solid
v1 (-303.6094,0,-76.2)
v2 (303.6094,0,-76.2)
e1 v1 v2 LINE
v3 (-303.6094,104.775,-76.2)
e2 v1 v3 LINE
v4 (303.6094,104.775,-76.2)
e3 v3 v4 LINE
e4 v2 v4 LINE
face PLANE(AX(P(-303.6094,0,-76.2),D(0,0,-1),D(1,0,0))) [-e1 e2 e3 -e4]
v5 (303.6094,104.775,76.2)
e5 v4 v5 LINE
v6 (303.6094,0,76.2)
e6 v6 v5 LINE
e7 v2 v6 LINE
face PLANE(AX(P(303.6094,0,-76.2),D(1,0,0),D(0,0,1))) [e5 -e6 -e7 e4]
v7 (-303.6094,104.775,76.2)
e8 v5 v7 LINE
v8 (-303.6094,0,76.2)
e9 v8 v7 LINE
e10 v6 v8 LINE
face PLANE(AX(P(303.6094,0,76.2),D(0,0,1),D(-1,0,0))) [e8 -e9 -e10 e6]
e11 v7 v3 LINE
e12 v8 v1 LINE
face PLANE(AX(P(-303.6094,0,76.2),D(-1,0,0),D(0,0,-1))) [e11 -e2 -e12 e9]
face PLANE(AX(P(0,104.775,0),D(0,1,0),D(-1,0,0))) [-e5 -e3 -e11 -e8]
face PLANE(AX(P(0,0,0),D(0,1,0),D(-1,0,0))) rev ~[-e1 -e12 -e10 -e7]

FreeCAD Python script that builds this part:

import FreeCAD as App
import Part
import Sketcher
Q = App.Units.Quantity


def add_polygon(sketch, points):
    """Adds a closed chain of lines whose ends are joined by coincident constraints."""
    first, n = sketch.GeometryCount, len(points)
    for a, b in zip(points, points[1:] + points[:1]):
        sketch.addGeometry(Part.LineSegment(App.Vector(*a, 0), App.Vector(*b, 0)), False)
    for i in range(n):
        sketch.addConstraint(Sketcher.Constraint("Coincident", first + i, 2, first + (i + 1) % n, 1))

doc = App.newDocument("Part")
params = doc.addObject("Spreadsheet::Sheet", "Params")
for row, (alias, value) in enumerate([
    ("sketch1_height", "6 in"),
    ("sketch1_width", "23.906252 in"),
    ("pad1_length", "4.125 in"),
], start=1):
    params.set(f"A{row}", alias)
    params.set(f"B{row}", "=" + value)
    params.setAlias(f"B{row}", alias)

body = doc.addObject("PartDesign::Body", "Body")

# Sketch on XZ plane
sketch1 = doc.addObject("Sketcher::SketchObject", "Sketch")
body.addObject(sketch1)
sketch1.AttachmentSupport = (doc.XZ_Plane, [""])
sketch1.MapMode = "FlatFace"
add_polygon(sketch1, [(303.6094, -76.2), (-303.6094, -76.2), (-303.6094, 76.2), (303.6094, 76.2)])  # lines 0-3
sketch1.addConstraint([
    Sketcher.Constraint("Horizontal", 0),
    Sketcher.Constraint("Vertical", 1),
    Sketcher.Constraint("Horizontal", 2),
    Sketcher.Constraint("Vertical", 3),
    Sketcher.Constraint("Symmetric", 0, 2, 2, 2, -1, 1),
    Sketcher.Constraint("DistanceY", 1, 1, 1, 2, Q("6 in")),
    Sketcher.Constraint("DistanceX", 0, 2, 0, 1, Q("23.906252 in")),
])
sketch1.setExpression("Constraints[9]", "Params.sketch1_height")
sketch1.setExpression("Constraints[10]", "Params.sketch1_width")
pad1 = doc.addObject("PartDesign::Pad", "Pad")
body.addObject(pad1)
pad1.Profile = sketch1
pad1.setExpression("Length", "Params.pad1_length")
pad1.Reversed = True

doc.recompute()
